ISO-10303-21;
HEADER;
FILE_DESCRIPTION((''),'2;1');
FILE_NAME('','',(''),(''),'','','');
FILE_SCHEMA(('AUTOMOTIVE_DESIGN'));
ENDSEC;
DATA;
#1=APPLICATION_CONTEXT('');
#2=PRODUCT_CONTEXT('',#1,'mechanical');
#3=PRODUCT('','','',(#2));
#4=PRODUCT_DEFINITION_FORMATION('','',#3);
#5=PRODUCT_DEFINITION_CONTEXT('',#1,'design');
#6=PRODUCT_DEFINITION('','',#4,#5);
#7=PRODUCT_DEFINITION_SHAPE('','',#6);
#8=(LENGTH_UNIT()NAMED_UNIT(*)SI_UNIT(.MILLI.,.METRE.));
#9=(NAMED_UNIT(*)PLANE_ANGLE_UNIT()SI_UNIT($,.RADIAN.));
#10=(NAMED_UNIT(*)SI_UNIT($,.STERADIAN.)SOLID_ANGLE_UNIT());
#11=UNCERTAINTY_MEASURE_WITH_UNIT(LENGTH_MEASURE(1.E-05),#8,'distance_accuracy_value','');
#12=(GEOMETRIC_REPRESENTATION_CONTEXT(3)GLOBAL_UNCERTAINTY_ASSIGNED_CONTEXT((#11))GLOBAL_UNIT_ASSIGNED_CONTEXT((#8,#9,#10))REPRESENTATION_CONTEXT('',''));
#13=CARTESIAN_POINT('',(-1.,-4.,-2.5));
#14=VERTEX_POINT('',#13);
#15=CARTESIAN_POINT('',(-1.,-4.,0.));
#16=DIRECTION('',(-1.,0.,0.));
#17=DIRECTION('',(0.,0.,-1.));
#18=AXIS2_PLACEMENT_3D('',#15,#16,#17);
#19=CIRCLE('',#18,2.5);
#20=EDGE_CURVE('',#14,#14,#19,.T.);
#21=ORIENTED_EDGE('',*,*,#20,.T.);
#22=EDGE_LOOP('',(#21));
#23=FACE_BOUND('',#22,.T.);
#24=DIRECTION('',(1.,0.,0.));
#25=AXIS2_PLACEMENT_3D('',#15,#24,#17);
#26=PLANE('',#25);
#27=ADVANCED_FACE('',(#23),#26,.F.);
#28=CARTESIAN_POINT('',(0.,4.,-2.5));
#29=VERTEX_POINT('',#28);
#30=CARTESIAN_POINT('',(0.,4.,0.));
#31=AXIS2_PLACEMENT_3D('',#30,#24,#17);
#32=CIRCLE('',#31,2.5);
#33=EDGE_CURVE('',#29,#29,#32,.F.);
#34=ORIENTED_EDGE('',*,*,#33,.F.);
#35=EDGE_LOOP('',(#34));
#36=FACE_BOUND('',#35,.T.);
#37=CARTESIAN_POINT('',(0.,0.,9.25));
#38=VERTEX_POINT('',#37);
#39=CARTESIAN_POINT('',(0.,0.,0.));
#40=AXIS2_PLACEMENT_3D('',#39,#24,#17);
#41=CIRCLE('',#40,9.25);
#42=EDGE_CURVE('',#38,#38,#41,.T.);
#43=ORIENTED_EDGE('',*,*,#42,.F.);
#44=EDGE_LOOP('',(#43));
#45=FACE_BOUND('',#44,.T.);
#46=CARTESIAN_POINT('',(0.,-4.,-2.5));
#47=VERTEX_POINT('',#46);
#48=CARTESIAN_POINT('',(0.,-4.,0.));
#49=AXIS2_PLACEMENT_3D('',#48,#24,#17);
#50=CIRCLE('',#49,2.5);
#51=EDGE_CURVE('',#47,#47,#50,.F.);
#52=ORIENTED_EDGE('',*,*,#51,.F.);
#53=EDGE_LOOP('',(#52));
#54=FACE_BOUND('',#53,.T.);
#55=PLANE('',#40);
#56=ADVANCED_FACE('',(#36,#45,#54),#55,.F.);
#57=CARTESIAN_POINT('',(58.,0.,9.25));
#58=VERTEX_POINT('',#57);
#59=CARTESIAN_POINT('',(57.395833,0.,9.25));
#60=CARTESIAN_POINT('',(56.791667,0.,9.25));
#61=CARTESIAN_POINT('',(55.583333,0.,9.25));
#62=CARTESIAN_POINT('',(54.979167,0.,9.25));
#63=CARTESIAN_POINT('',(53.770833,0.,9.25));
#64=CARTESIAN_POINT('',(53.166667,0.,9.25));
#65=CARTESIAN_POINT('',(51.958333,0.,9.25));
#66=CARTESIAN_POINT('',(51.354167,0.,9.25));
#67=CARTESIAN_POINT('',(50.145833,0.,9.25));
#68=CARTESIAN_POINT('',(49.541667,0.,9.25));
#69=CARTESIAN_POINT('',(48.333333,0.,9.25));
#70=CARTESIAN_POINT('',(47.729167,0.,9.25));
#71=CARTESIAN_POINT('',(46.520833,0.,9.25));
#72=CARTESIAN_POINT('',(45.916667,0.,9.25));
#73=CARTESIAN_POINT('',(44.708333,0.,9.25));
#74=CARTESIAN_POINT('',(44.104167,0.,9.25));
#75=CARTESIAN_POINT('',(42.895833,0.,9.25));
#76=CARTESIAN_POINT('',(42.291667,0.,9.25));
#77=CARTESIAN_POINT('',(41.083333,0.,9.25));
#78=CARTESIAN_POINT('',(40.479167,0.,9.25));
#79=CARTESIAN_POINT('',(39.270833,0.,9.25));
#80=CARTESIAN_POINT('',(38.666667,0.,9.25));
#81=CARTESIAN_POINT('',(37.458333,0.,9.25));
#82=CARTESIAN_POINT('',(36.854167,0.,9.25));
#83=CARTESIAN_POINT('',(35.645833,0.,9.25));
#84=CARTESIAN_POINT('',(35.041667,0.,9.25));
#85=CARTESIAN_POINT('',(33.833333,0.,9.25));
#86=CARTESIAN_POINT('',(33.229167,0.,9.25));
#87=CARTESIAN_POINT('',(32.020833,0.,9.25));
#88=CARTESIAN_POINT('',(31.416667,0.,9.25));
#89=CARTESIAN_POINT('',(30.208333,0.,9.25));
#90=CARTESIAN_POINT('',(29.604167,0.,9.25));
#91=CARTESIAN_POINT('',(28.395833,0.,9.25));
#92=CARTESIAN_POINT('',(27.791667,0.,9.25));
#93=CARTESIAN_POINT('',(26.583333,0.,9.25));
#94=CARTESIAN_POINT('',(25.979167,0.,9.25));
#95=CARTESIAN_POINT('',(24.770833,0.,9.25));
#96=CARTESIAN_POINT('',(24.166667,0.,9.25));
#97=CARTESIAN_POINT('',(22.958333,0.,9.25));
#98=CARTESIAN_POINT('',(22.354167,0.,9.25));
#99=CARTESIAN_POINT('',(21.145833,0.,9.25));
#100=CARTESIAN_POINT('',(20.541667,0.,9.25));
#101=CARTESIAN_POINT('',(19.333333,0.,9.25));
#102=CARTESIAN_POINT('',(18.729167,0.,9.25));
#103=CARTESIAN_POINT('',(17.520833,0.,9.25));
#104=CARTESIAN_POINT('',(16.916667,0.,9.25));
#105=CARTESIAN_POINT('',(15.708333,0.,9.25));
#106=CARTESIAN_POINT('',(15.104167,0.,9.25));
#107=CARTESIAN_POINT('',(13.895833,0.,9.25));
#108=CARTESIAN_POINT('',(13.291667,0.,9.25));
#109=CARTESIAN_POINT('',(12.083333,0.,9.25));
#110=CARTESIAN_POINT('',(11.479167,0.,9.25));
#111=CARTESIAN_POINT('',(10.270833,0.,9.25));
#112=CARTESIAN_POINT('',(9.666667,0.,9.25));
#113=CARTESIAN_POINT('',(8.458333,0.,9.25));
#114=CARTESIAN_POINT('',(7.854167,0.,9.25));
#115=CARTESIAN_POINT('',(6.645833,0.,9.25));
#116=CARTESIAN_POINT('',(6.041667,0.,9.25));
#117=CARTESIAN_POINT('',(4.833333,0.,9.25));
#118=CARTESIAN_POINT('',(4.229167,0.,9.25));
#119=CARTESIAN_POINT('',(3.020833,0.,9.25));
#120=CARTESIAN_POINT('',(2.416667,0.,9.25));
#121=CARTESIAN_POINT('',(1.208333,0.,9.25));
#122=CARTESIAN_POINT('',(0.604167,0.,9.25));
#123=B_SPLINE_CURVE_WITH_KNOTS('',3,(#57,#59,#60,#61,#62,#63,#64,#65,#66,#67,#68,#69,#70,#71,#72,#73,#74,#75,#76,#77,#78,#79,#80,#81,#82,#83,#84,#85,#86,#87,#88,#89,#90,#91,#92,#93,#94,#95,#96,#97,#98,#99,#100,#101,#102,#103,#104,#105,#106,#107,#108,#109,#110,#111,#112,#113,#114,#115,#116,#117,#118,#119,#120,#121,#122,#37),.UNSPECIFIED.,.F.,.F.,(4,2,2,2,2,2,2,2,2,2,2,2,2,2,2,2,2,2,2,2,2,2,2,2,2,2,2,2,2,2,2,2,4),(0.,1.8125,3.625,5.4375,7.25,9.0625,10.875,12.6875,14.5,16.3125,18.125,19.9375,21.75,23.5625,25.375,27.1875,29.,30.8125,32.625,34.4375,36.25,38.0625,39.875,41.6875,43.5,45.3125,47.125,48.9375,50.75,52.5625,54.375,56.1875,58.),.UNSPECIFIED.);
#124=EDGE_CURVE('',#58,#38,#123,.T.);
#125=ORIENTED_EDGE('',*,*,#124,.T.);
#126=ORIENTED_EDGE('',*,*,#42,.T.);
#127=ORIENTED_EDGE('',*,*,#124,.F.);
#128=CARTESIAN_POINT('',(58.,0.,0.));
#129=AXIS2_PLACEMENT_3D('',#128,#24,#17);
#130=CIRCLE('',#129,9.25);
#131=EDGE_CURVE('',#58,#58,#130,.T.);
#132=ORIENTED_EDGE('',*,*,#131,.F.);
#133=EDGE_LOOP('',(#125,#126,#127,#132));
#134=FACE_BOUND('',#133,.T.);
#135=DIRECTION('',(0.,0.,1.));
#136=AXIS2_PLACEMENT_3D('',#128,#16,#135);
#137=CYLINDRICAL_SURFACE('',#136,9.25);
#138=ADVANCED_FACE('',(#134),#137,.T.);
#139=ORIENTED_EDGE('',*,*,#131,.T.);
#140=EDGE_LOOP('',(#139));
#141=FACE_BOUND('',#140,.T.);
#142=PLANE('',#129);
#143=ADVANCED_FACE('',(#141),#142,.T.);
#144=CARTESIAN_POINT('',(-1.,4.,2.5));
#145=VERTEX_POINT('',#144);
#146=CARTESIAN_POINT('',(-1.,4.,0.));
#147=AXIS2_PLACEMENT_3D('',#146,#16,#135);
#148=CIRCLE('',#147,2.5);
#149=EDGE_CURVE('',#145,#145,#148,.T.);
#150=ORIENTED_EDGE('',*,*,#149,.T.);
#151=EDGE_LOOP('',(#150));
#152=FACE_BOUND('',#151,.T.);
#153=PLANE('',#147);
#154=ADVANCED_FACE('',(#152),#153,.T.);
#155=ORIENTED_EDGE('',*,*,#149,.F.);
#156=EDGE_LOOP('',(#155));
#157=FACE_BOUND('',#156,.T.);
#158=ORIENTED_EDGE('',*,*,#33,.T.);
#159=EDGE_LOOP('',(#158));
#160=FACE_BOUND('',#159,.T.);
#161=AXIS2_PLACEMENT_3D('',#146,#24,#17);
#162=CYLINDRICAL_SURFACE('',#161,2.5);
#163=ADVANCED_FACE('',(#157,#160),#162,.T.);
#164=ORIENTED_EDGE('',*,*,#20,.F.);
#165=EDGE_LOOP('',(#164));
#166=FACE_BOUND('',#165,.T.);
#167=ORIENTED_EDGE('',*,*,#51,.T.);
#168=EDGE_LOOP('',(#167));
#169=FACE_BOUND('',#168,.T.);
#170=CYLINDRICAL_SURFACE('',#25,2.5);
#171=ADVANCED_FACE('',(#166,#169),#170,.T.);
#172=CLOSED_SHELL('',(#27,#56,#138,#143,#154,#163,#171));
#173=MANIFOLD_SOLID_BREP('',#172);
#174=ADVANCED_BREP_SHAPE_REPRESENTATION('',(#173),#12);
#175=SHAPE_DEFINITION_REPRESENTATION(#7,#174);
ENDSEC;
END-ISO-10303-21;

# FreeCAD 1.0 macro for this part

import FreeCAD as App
import Part
import Sketcher

V = App.Vector
Q = App.Units.Quantity

doc = App.newDocument("Part")
body = doc.addObject("PartDesign::Body", "Body")

# Sketch on YZ plane
sketch1 = doc.addObject("Sketcher::SketchObject", "Sketch")
body.addObject(sketch1)
sketch1.AttachmentSupport = (doc.YZ_Plane, [""])
sketch1.MapMode = "FlatFace"
sketch1.addGeometry(Part.Circle(V(0, 0, 0), V(0, 0, 1), 9.25), False)
sketch1.addConstraint(Sketcher.Constraint("Coincident", 0, 3, -1, 1))
sketch1.addConstraint(Sketcher.Constraint("Diameter", 0, Q("18.5 mm")))
pad1 = doc.addObject("PartDesign::Pad", "Pad")
body.addObject(pad1)
pad1.Profile = sketch1
pad1.Length = 58

# Sketch on YZ plane
sketch2 = doc.addObject("Sketcher::SketchObject", "Sketch001")
body.addObject(sketch2)
sketch2.AttachmentSupport = (doc.YZ_Plane, [""])
sketch2.MapMode = "FlatFace"
sketch2.addGeometry(Part.Circle(V(4, 0, 0), V(0, 0, 1), 2.5), False)
sketch2.addGeometry(Part.Circle(V(-4, 0, 0), V(0, 0, 1), 2.5), False)
sketch2.addConstraint(Sketcher.Constraint("Equal", 0, 1))
sketch2.addConstraint(Sketcher.Constraint("Symmetric", 0, 3, 1, 3, -1, 1))
sketch2.addConstraint(Sketcher.Constraint("PointOnObject", 0, 3, -1))
sketch2.addConstraint(Sketcher.Constraint("Diameter", 0, Q("5 mm")))
sketch2.addConstraint(Sketcher.Constraint("DistanceX", -1, 1, 0, 3, Q("4 mm")))
pad2 = doc.addObject("PartDesign::Pad", "Pad001")
body.addObject(pad2)
pad2.Profile = sketch2
pad2.Length = 1
pad2.Reversed = True

doc.recompute()
